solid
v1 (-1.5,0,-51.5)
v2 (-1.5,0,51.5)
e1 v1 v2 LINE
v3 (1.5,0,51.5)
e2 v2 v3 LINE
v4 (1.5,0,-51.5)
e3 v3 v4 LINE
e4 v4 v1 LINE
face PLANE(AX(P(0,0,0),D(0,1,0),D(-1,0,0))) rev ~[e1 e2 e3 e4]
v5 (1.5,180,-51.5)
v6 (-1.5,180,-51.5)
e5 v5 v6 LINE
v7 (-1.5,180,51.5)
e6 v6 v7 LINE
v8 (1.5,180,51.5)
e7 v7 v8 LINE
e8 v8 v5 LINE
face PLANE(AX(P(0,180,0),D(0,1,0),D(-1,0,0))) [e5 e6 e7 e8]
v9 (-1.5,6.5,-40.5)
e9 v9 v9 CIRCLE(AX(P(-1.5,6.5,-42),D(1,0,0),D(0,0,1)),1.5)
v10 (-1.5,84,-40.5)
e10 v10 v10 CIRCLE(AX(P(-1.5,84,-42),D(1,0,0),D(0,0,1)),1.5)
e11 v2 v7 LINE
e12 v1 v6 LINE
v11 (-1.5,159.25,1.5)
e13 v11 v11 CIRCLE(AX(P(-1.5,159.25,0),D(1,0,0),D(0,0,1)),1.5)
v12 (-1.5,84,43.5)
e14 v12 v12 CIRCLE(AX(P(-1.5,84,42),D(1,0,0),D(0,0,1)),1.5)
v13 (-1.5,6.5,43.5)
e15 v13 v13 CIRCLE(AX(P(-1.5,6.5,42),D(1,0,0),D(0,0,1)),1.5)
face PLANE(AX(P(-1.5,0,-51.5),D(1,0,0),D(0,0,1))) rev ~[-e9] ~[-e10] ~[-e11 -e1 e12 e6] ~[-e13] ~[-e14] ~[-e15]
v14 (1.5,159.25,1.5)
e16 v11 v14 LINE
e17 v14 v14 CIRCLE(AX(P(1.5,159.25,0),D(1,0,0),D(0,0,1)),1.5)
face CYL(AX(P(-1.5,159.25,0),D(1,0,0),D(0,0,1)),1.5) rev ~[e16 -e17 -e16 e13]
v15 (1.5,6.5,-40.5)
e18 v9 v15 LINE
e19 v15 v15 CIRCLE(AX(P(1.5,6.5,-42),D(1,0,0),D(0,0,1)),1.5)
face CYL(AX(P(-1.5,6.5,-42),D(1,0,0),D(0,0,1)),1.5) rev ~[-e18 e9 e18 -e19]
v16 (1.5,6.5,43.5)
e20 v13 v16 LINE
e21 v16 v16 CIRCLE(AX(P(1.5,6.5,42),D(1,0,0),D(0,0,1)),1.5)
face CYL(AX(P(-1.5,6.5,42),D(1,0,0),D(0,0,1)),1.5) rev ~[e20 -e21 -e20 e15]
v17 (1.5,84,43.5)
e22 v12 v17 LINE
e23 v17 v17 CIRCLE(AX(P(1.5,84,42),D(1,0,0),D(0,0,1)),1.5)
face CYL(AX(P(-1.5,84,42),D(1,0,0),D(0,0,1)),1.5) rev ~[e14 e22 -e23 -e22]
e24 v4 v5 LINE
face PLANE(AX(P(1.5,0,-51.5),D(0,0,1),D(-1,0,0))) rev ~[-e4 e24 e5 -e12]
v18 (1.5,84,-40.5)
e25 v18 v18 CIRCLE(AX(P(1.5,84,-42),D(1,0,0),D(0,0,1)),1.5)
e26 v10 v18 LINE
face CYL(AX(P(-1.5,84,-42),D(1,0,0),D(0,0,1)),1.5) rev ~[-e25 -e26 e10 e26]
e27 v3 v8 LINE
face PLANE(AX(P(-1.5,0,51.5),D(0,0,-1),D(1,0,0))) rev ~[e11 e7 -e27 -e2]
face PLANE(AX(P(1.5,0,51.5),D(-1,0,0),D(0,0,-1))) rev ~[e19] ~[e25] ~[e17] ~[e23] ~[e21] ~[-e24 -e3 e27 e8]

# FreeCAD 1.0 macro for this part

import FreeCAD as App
import Part
import Sketcher

V = App.Vector

doc = App.newDocument("Part")
body = doc.addObject("PartDesign::Body", "Body")

# Sketch on XZ plane
sketch1 = doc.addObject("Sketcher::SketchObject", "Sketch")
body.addObject(sketch1)
sketch1.AttachmentSupport = (doc.XZ_Plane, [""])
sketch1.MapMode = "FlatFace"
sketch1.addGeometry(Part.LineSegment(V(1.5, 51.5, 0), V(1.5, -51.5, 0)), False)
sketch1.addGeometry(Part.LineSegment(V(1.5, -51.5, 0), V(-1.5, -51.5, 0)), False)
sketch1.addGeometry(Part.LineSegment(V(-1.5, -51.5, 0), V(-1.5, 51.5, 0)), False)
sketch1.addGeometry(Part.LineSegment(V(-1.5, 51.5, 0), V(1.5, 51.5, 0)), False)
sketch1.addConstraint(Sketcher.Constraint("Coincident", 0, 2, 1, 1))
sketch1.addConstraint(Sketcher.Constraint("Coincident", 1, 2, 2, 1))
sketch1.addConstraint(Sketcher.Constraint("Coincident", 2, 2, 3, 1))
sketch1.addConstraint(Sketcher.Constraint("Coincident", 3, 2, 0, 1))
sketch1.addConstraint(Sketcher.Constraint("Vertical", 0))
sketch1.addConstraint(Sketcher.Constraint("Horizontal", 1))
sketch1.addConstraint(Sketcher.Constraint("Vertical", 2))
sketch1.addConstraint(Sketcher.Constraint("Horizontal", 3))
sketch1.addConstraint(Sketcher.Constraint("Symmetric", 0, 2, 2, 2, -1, 1))
sketch1.addConstraint(Sketcher.Constraint("DistanceX", 1, 2, 1, 1, 3.0))
sketch1.addConstraint(Sketcher.Constraint("DistanceY", 0, 2, 0, 1, 103.0))
pad1 = doc.addObject("PartDesign::Pad", "Pad")
body.addObject(pad1)
pad1.Profile = sketch1
pad1.Length = 180
pad1.Reversed = True

# Sketch on YZ plane
sketch2 = doc.addObject("Sketcher::SketchObject", "Sketch001")
body.addObject(sketch2)
sketch2.AttachmentSupport = (doc.YZ_Plane, [""])
sketch2.MapMode = "FlatFace"
sketch2.AttachmentOffset = App.Placement(V(0, 0, -1.5), App.Rotation())
sketch2.addGeometry(Part.Circle(V(84, -42, 0), V(0, 0, 1), 1.5), False)
sketch2.addGeometry(Part.Circle(V(6.5, -42, 0), V(0, 0, 1), 1.5), False)
sketch2.addGeometry(Part.Circle(V(6.5, 42, 0), V(0, 0, 1), 1.5), False)
sketch2.addGeometry(Part.Circle(V(84, 42, 0), V(0, 0, 1), 1.5), False)
sketch2.addGeometry(Part.Circle(V(159.2, 0, 0), V(0, 0, 1), 1.5), False)
sketch2.addConstraint(Sketcher.Constraint("Equal", 0, 1))
sketch2.addConstraint(Sketcher.Constraint("Equal", 1, 2))
sketch2.addConstraint(Sketcher.Constraint("Equal", 2, 3))
sketch2.addConstraint(Sketcher.Constraint("Equal", 3, 4))
sketch2.addConstraint(Sketcher.Constraint("Symmetric", 1, 3, 2, 3, -1))
sketch2.addConstraint(Sketcher.Constraint("Symmetric", 0, 3, 3, 3, -1))
sketch2.addConstraint(Sketcher.Constraint("PointOnObject", 4, 3, -1))
sketch2.addConstraint(Sketcher.Constraint("Horizontal", 0, 3, 1, 3))
sketch2.addConstraint(Sketcher.Constraint("Diameter", 0, 3.0))
sketch2.addConstraint(Sketcher.Constraint("DistanceX", -1, 1, 0, 3, 84.0))
sketch2.addConstraint(Sketcher.Constraint("DistanceY", 0, 3, -1, 1, 42.0))
sketch2.addConstraint(Sketcher.Constraint("DistanceX", -1, 1, 1, 3, 6.5))
sketch2.addConstraint(Sketcher.Constraint("DistanceX", -1, 1, 4, 3, 159.25))
doc.recompute()
hole = doc.addObject("PartDesign::Hole", "Hole")
body.addObject(hole)
hole.Profile = sketch2
hole.ThreadType = "None"
hole.Diameter = 3
hole.DepthType = "Dimension"
hole.Depth = 5
hole.DrillPoint = "Angled"
hole.DrillPointAngle = 118
hole.Reversed = True

doc.recompute()
